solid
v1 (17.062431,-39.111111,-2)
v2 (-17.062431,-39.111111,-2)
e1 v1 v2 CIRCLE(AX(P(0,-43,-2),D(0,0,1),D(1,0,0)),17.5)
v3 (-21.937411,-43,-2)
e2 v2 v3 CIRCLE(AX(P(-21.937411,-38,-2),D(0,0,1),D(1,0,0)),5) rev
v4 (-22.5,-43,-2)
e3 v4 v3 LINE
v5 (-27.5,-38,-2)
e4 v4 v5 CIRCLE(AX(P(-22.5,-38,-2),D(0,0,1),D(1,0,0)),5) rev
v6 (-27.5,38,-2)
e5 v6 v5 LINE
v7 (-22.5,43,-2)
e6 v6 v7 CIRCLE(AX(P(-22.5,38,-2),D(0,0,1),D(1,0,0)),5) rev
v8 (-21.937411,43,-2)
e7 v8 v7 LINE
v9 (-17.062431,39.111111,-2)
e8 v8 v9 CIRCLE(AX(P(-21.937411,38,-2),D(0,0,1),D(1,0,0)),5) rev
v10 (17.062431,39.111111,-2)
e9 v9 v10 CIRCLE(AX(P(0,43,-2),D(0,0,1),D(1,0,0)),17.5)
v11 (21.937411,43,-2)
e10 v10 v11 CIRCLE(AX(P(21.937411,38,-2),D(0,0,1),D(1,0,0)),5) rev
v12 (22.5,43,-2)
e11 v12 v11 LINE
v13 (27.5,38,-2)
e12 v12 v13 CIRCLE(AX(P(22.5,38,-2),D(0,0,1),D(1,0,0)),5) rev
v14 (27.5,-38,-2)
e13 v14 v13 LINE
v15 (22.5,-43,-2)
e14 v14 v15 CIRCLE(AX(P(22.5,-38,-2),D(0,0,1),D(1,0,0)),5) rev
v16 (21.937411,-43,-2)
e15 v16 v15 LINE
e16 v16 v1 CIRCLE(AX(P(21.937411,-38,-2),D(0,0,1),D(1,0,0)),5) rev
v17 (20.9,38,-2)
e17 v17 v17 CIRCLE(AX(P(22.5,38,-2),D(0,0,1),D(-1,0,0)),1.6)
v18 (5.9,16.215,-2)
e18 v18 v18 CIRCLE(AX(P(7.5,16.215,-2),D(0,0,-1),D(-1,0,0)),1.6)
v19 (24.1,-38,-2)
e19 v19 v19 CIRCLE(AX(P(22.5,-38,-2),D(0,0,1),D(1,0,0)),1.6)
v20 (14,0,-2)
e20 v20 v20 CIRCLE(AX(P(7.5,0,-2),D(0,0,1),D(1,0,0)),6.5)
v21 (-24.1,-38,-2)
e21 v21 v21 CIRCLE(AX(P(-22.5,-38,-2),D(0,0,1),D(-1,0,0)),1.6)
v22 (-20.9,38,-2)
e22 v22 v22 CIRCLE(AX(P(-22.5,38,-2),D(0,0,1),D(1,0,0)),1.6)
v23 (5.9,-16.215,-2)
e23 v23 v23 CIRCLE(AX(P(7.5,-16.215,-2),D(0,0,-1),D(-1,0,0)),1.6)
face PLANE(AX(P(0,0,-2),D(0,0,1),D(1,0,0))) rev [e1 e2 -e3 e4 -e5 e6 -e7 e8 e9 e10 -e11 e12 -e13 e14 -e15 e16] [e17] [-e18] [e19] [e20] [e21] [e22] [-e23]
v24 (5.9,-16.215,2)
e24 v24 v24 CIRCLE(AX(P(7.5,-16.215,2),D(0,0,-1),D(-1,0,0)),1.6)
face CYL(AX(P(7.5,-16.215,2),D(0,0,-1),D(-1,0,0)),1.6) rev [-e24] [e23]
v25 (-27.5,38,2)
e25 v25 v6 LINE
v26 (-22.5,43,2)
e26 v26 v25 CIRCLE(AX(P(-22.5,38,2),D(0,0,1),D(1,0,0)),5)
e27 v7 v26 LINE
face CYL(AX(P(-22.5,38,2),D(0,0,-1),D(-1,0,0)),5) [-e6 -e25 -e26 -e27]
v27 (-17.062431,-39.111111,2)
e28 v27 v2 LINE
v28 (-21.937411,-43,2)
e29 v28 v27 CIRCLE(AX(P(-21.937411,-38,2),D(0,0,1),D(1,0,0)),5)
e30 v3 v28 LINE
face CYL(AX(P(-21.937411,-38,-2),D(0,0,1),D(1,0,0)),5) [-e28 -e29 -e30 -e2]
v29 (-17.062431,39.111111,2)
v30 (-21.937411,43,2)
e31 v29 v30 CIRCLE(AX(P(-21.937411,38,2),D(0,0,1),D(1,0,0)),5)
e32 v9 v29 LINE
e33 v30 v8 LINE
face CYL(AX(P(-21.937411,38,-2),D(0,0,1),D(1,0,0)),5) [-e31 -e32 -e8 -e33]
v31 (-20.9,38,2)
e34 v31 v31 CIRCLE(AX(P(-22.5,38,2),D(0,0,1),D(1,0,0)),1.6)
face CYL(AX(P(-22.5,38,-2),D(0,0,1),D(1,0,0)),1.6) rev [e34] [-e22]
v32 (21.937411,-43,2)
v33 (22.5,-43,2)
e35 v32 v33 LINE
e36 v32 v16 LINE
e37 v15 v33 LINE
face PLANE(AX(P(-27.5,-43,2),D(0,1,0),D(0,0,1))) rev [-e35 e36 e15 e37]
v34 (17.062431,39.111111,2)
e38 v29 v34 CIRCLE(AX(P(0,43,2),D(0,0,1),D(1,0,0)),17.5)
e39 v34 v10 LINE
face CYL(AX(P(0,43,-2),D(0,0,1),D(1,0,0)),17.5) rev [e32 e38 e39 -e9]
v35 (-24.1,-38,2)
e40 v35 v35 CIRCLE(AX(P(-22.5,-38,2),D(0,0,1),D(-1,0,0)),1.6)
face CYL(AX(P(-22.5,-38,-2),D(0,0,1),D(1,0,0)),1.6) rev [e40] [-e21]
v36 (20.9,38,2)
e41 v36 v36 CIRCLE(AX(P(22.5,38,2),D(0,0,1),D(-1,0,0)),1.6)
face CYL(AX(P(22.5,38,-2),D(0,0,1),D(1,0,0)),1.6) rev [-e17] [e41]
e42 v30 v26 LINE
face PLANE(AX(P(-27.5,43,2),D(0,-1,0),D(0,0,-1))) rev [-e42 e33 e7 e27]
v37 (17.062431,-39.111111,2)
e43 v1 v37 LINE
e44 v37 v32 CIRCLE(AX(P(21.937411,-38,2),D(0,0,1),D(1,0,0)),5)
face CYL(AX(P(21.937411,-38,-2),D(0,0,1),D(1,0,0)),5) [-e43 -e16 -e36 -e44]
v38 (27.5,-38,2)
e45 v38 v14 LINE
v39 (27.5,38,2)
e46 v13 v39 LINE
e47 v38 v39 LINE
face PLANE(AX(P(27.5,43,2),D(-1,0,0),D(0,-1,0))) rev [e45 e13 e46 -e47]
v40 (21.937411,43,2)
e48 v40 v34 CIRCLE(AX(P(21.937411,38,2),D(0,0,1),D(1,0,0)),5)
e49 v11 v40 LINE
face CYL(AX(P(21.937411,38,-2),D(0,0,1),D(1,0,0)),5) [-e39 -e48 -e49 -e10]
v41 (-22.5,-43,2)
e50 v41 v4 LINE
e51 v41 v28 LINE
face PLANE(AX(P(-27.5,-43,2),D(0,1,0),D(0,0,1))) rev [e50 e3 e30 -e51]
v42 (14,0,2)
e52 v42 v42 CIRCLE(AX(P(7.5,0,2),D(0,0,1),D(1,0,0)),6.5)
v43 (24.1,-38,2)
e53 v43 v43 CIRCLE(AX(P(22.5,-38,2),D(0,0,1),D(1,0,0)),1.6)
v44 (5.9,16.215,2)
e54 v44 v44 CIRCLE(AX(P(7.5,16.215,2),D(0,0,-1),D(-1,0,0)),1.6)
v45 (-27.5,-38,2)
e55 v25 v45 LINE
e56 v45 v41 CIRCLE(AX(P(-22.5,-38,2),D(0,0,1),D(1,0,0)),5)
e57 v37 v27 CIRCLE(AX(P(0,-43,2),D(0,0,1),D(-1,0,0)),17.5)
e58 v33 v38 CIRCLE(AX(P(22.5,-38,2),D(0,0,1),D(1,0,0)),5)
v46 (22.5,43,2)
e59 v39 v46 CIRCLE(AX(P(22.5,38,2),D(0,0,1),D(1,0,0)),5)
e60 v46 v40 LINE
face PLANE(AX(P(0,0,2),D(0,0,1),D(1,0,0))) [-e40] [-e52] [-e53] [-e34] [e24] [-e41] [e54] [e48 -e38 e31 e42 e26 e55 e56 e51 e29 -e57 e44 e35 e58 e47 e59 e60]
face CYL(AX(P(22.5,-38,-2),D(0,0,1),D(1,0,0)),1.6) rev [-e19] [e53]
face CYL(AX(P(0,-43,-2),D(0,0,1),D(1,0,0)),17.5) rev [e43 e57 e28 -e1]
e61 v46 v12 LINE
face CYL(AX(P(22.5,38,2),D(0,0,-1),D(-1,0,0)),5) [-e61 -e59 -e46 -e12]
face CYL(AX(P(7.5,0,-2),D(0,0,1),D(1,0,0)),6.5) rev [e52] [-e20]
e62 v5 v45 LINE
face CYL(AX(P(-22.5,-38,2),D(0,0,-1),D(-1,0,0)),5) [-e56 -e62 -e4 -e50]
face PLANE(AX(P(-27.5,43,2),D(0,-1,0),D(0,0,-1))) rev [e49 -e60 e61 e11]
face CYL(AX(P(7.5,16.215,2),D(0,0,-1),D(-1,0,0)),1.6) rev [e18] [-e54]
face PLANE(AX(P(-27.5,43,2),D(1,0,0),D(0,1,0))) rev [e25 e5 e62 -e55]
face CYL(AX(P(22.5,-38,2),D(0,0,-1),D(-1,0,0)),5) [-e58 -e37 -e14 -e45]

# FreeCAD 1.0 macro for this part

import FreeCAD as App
import Part
import Sketcher
Q = App.Units.Quantity


def edges_at(feature, points):
    """Names of the edges that pass closest to the given points."""
    edges = feature.Shape.Edges
    near = lambda p: min(range(len(edges)), key=lambda i: edges[i].distToShape(Part.Vertex(*p))[0])
    return sorted({f"Edge{near(p) + 1}" for p in points})

doc = App.newDocument("Part")
body = doc.addObject("PartDesign::Body", "Body")

# Sketch on XY plane
sketch1 = body.newObject("Sketcher::SketchObject", "Sketch")
sketch1.AttachmentSupport = (doc.getObject("XY_Plane"), [""])
sketch1.MapMode = "FlatFace"
sketch1.addGeometry(Part.LineSegment(App.Vector(-28, 43, 0), App.Vector(-28, -43, 0)), False)
sketch1.addGeometry(Part.LineSegment(App.Vector(-28, -43, 0), App.Vector(28, -43, 0)), False)
sketch1.addGeometry(Part.LineSegment(App.Vector(28, -43, 0), App.Vector(28, 43, 0)), False)
sketch1.addGeometry(Part.LineSegment(App.Vector(28, 43, 0), App.Vector(-28, 43, 0)), False)
sketch1.addConstraint(Sketcher.Constraint("Coincident", 0, 2, 1, 1))
sketch1.addConstraint(Sketcher.Constraint("Coincident", 1, 2, 2, 1))
sketch1.addConstraint(Sketcher.Constraint("Coincident", 2, 2, 3, 1))
sketch1.addConstraint(Sketcher.Constraint("Coincident", 3, 2, 0, 1))
sketch1.addConstraint(Sketcher.Constraint("Vertical", 0))
sketch1.addConstraint(Sketcher.Constraint("Horizontal", 1))
sketch1.addConstraint(Sketcher.Constraint("Vertical", 2))
sketch1.addConstraint(Sketcher.Constraint("Horizontal", 3))
sketch1.addConstraint(Sketcher.Constraint("Symmetric", 0, 2, 2, 2, -1, 1))
sketch1.addConstraint(Sketcher.Constraint("DistanceX", 1, 1, 1, 2, Q("55 mm")))
sketch1.addConstraint(Sketcher.Constraint("DistanceY", 0, 2, 0, 1, Q("86 mm")))
pad1 = body.newObject("PartDesign::Pad", "Pad")
pad1.Profile = sketch1
pad1.Length = 4
pad1.Midplane = True

# Sketch on XY plane
sketch2 = body.newObject("Sketcher::SketchObject", "Sketch001")
sketch2.AttachmentSupport = (doc.getObject("XY_Plane"), [""])
sketch2.MapMode = "FlatFace"
sketch2.AttachmentOffset = App.Placement(App.Vector(0, 0, 2), App.Rotation())
sketch2.addGeometry(Part.Circle(App.Vector(8, 0, 0), App.Vector(0, 0, 1), 6), False)
sketch2.addConstraint(Sketcher.Constraint("PointOnObject", 0, 3, -1))
sketch2.addConstraint(Sketcher.Constraint("Diameter", 0, Q("13 mm")))
sketch2.addConstraint(Sketcher.Constraint("DistanceX", -1, 1, 0, 3, Q("7.5 mm")))
pocket1 = body.newObject("PartDesign::Pocket", "Pocket")
pocket1.Profile = sketch2
pocket1.Type = "ThroughAll"

# Sketch on XY plane
sketch3 = body.newObject("Sketcher::SketchObject", "Sketch002")
sketch3.AttachmentSupport = (doc.getObject("XY_Plane"), [""])
sketch3.MapMode = "FlatFace"
sketch3.AttachmentOffset = App.Placement(App.Vector(0, 0, 2), App.Rotation())
sketch3.addGeometry(Part.Circle(App.Vector(-22.5, 38, 0), App.Vector(0, 0, 1), 1.6), False)
sketch3.addGeometry(Part.Circle(App.Vector(22.5, 38, 0), App.Vector(0, 0, 1), 1.6), False)
sketch3.addGeometry(Part.Circle(App.Vector(22.5, -38, 0), App.Vector(0, 0, 1), 1.6), False)
sketch3.addGeometry(Part.Circle(App.Vector(-22.5, -38, 0), App.Vector(0, 0, 1), 1.6), False)
sketch3.addConstraint(Sketcher.Constraint("Equal", 0, 1))
sketch3.addConstraint(Sketcher.Constraint("Equal", 1, 2))
sketch3.addConstraint(Sketcher.Constraint("Equal", 2, 3))
sketch3.addConstraint(Sketcher.Constraint("Symmetric", 0, 3, 2, 3, -1, 1))
sketch3.addConstraint(Sketcher.Constraint("Symmetric", 1, 3, 3, 3, -1, 1))
sketch3.addConstraint(Sketcher.Constraint("Symmetric", 0, 3, 1, 3, -2))
sketch3.addConstraint(Sketcher.Constraint("Diameter", 0, Q("3.2 mm")))
sketch3.addConstraint(Sketcher.Constraint("DistanceY", -1, 1, 0, 3, Q("38 mm")))
sketch3.addConstraint(Sketcher.Constraint("DistanceX", 0, 3, 1, 3, Q("45 mm")))
pocket2 = body.newObject("PartDesign::Pocket", "Pocket001")
pocket2.Profile = sketch3
pocket2.Type = "ThroughAll"

# Sketch on XY plane
sketch4 = body.newObject("Sketcher::SketchObject", "Sketch003")
sketch4.AttachmentSupport = (doc.getObject("XY_Plane"), [""])
sketch4.MapMode = "FlatFace"
sketch4.AttachmentOffset = App.Placement(App.Vector(0, 0, -2), App.Rotation())
sketch4.addGeometry(Part.Circle(App.Vector(7.5, 16.2, 0), App.Vector(0, 0, 1), 1.6), False)
sketch4.addGeometry(Part.Circle(App.Vector(7.5, -16.2, 0), App.Vector(0, 0, 1), 1.6), False)
sketch4.addConstraint(Sketcher.Constraint("Equal", 0, 1))
sketch4.addConstraint(Sketcher.Constraint("Symmetric", 0, 3, 1, 3, -1))
sketch4.addConstraint(Sketcher.Constraint("Diameter", 0, Q("3.2 mm")))
sketch4.addConstraint(Sketcher.Constraint("DistanceX", -1, 1, 0, 3, Q("7.5 mm")))
sketch4.addConstraint(Sketcher.Constraint("DistanceY", 1, 3, 0, 3, Q("32.43 mm")))
pocket3 = body.newObject("PartDesign::Pocket", "Pocket002")
pocket3.Profile = sketch4
pocket3.Type = "ThroughAll"
pocket3.Reversed = True

# Sketch on XY plane
sketch5 = body.newObject("Sketcher::SketchObject", "Sketch004")
sketch5.AttachmentSupport = (doc.getObject("XY_Plane"), [""])
sketch5.MapMode = "FlatFace"
sketch5.AttachmentOffset = App.Placement(App.Vector(0, 0, 2), App.Rotation())
sketch5.addGeometry(Part.Circle(App.Vector(0, 43, 0), App.Vector(0, 0, 1), 18), False)
sketch5.addGeometry(Part.Circle(App.Vector(0, -43, 0), App.Vector(0, 0, 1), 18), False)
sketch5.addConstraint(Sketcher.Constraint("Equal", 0, 1))
sketch5.addConstraint(Sketcher.Constraint("Symmetric", 0, 3, 1, 3, -1, 1))
sketch5.addConstraint(Sketcher.Constraint("PointOnObject", 0, 3, -2))
sketch5.addConstraint(Sketcher.Constraint("Diameter", 0, Q("35 mm")))
sketch5.addConstraint(Sketcher.Constraint("DistanceY", -1, 1, 0, 3, Q("43 mm")))
pocket4 = body.newObject("PartDesign::Pocket", "Pocket003")
pocket4.Profile = sketch5
pocket4.Type = "ThroughAll"
doc.recompute()

fillet = body.newObject("PartDesign::Fillet", "Fillet")
fillet.Base = (pocket4, edges_at(pocket4, [
    (17.5, 43, 0),
    (-17.5, 43, 0),
    (-17.5, -43, 0),
    (17.5, -43, 0),
    (27.5, -43, 0),
    (-27.5, -43, 0),
    (-27.5, 43, 0),
    (27.5, 43, 0),
]))
fillet.Radius = 5

doc.recompute()
